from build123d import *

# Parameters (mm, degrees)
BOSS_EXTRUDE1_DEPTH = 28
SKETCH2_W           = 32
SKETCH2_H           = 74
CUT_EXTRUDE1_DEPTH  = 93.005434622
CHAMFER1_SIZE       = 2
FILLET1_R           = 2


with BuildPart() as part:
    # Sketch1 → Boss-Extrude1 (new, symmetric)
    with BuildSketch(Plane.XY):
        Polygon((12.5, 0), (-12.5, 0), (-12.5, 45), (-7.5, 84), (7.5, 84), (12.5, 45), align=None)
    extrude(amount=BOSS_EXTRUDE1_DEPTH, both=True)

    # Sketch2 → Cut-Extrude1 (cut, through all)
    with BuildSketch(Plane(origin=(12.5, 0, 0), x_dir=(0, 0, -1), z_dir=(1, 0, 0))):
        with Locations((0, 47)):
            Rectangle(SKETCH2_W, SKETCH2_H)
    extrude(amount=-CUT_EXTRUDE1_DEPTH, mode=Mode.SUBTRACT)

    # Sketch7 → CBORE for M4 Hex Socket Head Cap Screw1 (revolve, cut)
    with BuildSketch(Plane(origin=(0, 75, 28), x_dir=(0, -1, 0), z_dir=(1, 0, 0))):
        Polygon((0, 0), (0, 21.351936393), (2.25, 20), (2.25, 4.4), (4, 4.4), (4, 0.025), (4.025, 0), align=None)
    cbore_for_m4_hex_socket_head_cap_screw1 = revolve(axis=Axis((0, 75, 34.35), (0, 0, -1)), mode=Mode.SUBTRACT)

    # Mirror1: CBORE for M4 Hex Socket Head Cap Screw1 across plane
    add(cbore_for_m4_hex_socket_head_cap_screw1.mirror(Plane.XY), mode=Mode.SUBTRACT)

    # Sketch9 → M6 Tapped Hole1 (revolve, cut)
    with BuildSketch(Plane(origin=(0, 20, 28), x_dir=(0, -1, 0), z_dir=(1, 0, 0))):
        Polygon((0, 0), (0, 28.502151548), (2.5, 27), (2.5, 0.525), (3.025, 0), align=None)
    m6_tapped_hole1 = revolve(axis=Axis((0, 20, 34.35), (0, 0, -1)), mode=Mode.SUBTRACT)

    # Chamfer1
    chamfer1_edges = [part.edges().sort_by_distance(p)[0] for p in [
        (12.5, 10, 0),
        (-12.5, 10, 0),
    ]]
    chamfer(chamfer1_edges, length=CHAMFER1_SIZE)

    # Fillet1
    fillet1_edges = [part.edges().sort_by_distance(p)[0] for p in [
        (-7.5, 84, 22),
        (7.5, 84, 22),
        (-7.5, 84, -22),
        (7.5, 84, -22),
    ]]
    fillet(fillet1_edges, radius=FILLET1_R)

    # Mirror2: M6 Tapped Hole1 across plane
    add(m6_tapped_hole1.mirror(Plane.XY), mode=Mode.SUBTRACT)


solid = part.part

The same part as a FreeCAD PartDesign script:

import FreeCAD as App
import Part
import Sketcher
Q = App.Units.Quantity


def edges_at(feature, points):
    """Names of the edges that pass closest to the given points."""
    edges = feature.Shape.Edges
    near = lambda p: min(range(len(edges)), key=lambda i: edges[i].distToShape(Part.Vertex(*p))[0])
    return sorted({f"Edge{near(p) + 1}" for p in points})


def add_polygon(sketch, points):
    """Adds a closed chain of lines whose ends are joined by coincident constraints."""
    first, n = sketch.GeometryCount, len(points)
    for a, b in zip(points, points[1:] + points[:1]):
        sketch.addGeometry(Part.LineSegment(App.Vector(*a, 0), App.Vector(*b, 0)), False)
    for i in range(n):
        sketch.addConstraint(Sketcher.Constraint("Coincident", first + i, 2, first + (i + 1) % n, 1))

doc = App.newDocument("Part")
body = doc.addObject("PartDesign::Body", "Body")

sketch1 = doc.addObject("Sketcher::SketchObject", "Sketch")
body.addObject(sketch1)
sketch1.AttachmentSupport = (doc.XY_Plane, [""])
sketch1.MapMode = "FlatFace"
add_polygon(sketch1, [(-12, 0), (12, 0), (12, 45), (8, 84), (-8, 84), (-12, 45)])
sketch1.addConstraint([
    Sketcher.Constraint("Horizontal", 0),
    Sketcher.Constraint("Vertical", 1),
    Sketcher.Constraint("Horizontal", 3),
    Sketcher.Constraint("Vertical", 5),
    Sketcher.Constraint("Symmetric", 0, 2, 5, 2, -1, 1),
    Sketcher.Constraint("Horizontal", 1, 2, 4, 2),
    Sketcher.Constraint("Equal", 2, 4),
    Sketcher.Constraint("DistanceX", 0, 1, 0, 2, Q("25 mm")),
    Sketcher.Constraint("DistanceX", 3, 2, 3, 1, Q("15 mm")),
    Sketcher.Constraint("DistanceY", 1, 1, 1, 2, Q("45 mm")),
    Sketcher.Constraint("DistanceY", -1, 1, 2, 2, Q("84 mm")),
])
pad1 = doc.addObject("PartDesign::Pad", "Pad")
body.addObject(pad1)
pad1.Profile = sketch1
pad1.Length = 56
pad1.Midplane = True

sketch2 = doc.addObject("Sketcher::SketchObject", "Sketch001")
body.addObject(sketch2)
sketch2.AttachmentSupport = (doc.YZ_Plane, [""])
sketch2.MapMode = "FlatFace"
sketch2.AttachmentOffset = App.Placement(App.Vector(0, 0, 12.5), App.Rotation())
add_polygon(sketch2, [(84, 16), (10, 16), (10, -16), (84, -16)])
sketch2.addConstraint([
    Sketcher.Constraint("Horizontal", 0),
    Sketcher.Constraint("Vertical", 1),
    Sketcher.Constraint("Horizontal", 2),
    Sketcher.Constraint("Vertical", 3),
    Sketcher.Constraint("DistanceX", 0, 2, 0, 1, Q("74 mm")),
    Sketcher.Constraint("DistanceY", 1, 2, 1, 1, Q("32 mm")),
    Sketcher.Constraint("DistanceX", -1, 1, 0, 2, Q("10 mm")),
    Sketcher.Constraint("DistanceY", -1, 1, 0, 2, Q("16 mm")),
])
pocket1 = doc.addObject("PartDesign::Pocket", "Pocket")
body.addObject(pocket1)
pocket1.Profile = sketch2
pocket1.Type = "ThroughAll"

sketch3 = doc.addObject("Sketcher::SketchObject", "Sketch002")
body.addObject(sketch3)
sketch3.AttachmentSupport = (doc.YZ_Plane, [""])
sketch3.MapMode = "FlatFace"
add_polygon(sketch3, [(75, 6.648), (75, 28), (70.975, 28), (71, 27.975), (71, 23.6), (72.75, 23.6), (72.75, 8)])
sketch3.addGeometry(Part.LineSegment(App.Vector(75, 28, 0), App.Vector(75, 6.648, 0)), True)
sketch3.addConstraint([
    Sketcher.Constraint("Vertical", 0),
    Sketcher.Constraint("Horizontal", 1),
    Sketcher.Constraint("Vertical", 3),
    Sketcher.Constraint("Horizontal", 4),
    Sketcher.Constraint("Vertical", 5),
    Sketcher.Constraint("Vertical", 7),
    Sketcher.Constraint("Coincident", 7, 1, 0, 2),
    Sketcher.Constraint("Equal", 0, 7),
    Sketcher.Constraint("Angle", 2, Q("-45 deg")),
    Sketcher.Constraint("Angle", 6, Q("-31 deg")),
    Sketcher.Constraint("DistanceY", 5, 2, 5, 1, Q("15.6 mm")),
    Sketcher.Constraint("DistanceX", -1, 1, 0, 2, Q("75 mm")),
    Sketcher.Constraint("DistanceY", -1, 1, 0, 2, Q("28 mm")),
    Sketcher.Constraint("DistanceX", -1, 1, 2, 2, Q("71 mm")),
    Sketcher.Constraint("DistanceY", -1, 1, 5, 2, Q("8 mm")),
    Sketcher.Constraint("DistanceX", 4, 1, 4, 2, Q("1.75 mm")),
    Sketcher.Constraint("DistanceX", 1, 2, 1, 1, Q("4.025 mm")),
])
groove = doc.addObject("PartDesign::Groove", "Groove")
body.addObject(groove)
groove.Profile = sketch3
groove.ReferenceAxis = (sketch3, ["Axis0"])
groove.Angle = 360
doc.recompute()

mirrored = doc.addObject("PartDesign::Mirrored", "Mirrored")
body.addObject(mirrored)
mirrored.Originals = [groove]
mirrored.MirrorPlane = (doc.XY_Plane, [""])
body.Tip = mirrored

sketch4 = doc.addObject("Sketcher::SketchObject", "Sketch003")
body.addObject(sketch4)
sketch4.AttachmentSupport = (doc.YZ_Plane, [""])
sketch4.MapMode = "FlatFace"
add_polygon(sketch4, [(20, -0.5), (20, 28), (17, 28), (17.5, 27.5), (17.5, 1)])
sketch4.addGeometry(Part.LineSegment(App.Vector(20, 28, 0), App.Vector(20, -0.5, 0)), True)
sketch4.addConstraint([
    Sketcher.Constraint("Vertical", 0),
    Sketcher.Constraint("Horizontal", 1),
    Sketcher.Constraint("Vertical", 3),
    Sketcher.Constraint("Vertical", 5),
    Sketcher.Constraint("Coincident", 5, 1, 0, 2),
    Sketcher.Constraint("Equal", 0, 5),
    Sketcher.Constraint("Angle", 2, Q("-45 deg")),
    Sketcher.Constraint("Angle", 4, Q("-31 deg")),
    Sketcher.Constraint("DistanceX", -1, 1, 0, 2, Q("20 mm")),
    Sketcher.Constraint("DistanceY", -1, 1, 0, 2, Q("28 mm")),
    Sketcher.Constraint("DistanceY", -1, 1, 3, 2, Q("1 mm")),
    Sketcher.Constraint("DistanceX", -1, 1, 2, 2, Q("17.5 mm")),
    Sketcher.Constraint("DistanceX", 1, 2, 1, 1, Q("3.025 mm")),
])
groove2 = doc.addObject("PartDesign::Groove", "Groove001")
body.addObject(groove2)
groove2.Profile = sketch4
groove2.ReferenceAxis = (sketch4, ["Axis0"])
groove2.Angle = 360
doc.recompute()

chamfer = doc.addObject("PartDesign::Chamfer", "Chamfer")
body.addObject(chamfer)
chamfer.Base = (groove2, edges_at(groove2, [(12.5, 10, 0), (-12.5, 10, 0)]))
chamfer.Size = 2
doc.recompute()

fillet = doc.addObject("PartDesign::Fillet", "Fillet")
body.addObject(fillet)
fillet.Base = (chamfer, edges_at(chamfer, [
    (-7.5, 84, 22),
    (7.5, 84, 22),
    (-7.5, 84, -22),
    (7.5, 84, -22),
]))
fillet.Radius = 2
doc.recompute()

mirrored2 = doc.addObject("PartDesign::Mirrored", "Mirrored001")
body.addObject(mirrored2)
mirrored2.Originals = [groove2]
mirrored2.MirrorPlane = (doc.XY_Plane, [""])
body.Tip = mirrored2

doc.recompute()
